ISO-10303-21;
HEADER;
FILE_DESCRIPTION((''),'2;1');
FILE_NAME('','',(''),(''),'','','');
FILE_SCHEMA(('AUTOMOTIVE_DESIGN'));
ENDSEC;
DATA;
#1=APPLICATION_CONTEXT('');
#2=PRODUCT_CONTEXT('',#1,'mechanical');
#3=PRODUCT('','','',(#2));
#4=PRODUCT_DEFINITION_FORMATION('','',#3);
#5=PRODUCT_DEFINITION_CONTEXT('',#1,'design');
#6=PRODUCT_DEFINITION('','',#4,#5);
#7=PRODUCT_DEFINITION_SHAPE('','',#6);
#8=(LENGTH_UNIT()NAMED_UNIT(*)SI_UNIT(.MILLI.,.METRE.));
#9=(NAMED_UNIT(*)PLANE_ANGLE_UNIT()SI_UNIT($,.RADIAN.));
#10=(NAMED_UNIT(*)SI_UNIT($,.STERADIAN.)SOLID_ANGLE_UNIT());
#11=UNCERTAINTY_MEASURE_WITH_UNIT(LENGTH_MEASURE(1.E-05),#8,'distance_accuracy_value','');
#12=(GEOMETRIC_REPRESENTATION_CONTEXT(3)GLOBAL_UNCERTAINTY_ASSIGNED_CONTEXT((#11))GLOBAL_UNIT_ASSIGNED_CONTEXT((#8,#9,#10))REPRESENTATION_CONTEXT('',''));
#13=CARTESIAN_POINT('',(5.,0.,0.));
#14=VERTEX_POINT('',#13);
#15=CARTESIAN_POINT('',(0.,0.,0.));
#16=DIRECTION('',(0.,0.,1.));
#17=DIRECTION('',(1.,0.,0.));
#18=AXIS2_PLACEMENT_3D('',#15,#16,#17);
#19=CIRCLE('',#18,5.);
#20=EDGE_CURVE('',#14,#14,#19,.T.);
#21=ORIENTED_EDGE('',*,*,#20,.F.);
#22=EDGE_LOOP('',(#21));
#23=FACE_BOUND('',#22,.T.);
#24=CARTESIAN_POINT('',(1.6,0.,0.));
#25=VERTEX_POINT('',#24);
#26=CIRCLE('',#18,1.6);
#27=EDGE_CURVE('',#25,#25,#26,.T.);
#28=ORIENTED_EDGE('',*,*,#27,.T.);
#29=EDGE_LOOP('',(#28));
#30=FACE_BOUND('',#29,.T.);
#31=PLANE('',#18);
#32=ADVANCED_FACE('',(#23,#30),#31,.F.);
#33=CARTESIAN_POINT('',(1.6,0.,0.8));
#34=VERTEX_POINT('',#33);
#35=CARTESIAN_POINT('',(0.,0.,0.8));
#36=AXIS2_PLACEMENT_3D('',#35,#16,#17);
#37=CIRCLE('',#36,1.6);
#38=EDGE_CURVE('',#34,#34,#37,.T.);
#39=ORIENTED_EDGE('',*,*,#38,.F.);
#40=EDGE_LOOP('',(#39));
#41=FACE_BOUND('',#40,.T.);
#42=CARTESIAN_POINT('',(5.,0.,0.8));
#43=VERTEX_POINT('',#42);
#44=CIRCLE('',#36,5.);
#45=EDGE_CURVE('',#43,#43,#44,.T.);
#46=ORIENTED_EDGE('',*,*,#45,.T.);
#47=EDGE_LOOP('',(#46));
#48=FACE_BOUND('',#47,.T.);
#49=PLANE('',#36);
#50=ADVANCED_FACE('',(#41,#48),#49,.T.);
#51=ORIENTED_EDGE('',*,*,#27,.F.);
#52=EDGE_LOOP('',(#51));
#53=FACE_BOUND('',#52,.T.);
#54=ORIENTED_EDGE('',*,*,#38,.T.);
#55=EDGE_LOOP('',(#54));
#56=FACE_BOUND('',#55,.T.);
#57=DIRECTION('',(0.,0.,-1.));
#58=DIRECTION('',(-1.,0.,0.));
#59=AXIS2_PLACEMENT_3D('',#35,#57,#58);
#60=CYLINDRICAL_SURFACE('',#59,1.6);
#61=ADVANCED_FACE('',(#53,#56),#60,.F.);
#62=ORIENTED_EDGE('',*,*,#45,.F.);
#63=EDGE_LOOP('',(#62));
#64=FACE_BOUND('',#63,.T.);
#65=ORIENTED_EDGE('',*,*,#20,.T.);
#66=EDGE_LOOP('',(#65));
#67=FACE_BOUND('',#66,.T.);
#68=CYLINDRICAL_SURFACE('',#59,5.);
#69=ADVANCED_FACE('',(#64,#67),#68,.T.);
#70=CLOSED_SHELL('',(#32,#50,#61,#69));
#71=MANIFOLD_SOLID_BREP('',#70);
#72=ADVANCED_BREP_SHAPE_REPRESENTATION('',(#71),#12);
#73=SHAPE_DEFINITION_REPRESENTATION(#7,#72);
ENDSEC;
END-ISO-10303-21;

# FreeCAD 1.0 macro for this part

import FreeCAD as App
import Part
import Sketcher

V = App.Vector

doc = App.newDocument("Part")
body = doc.addObject("PartDesign::Body", "Body")

sketch1 = doc.addObject("Sketcher::SketchObject", "Sketch")
body.addObject(sketch1)
sketch1.AttachmentSupport = (doc.XY_Plane, [""])
sketch1.MapMode = "FlatFace"
sketch1.addGeometry(Part.Circle(V(0, 0, 0), V(0, 0, 1), 5), False)
sketch1.addGeometry(Part.Circle(V(0, 0, 0), V(0, 0, 1), 1.6), False)
sketch1.addConstraint(Sketcher.Constraint("Coincident", 0, 3, -1, 1))
sketch1.addConstraint(Sketcher.Constraint("Coincident", 1, 3, -1, 1))
sketch1.addConstraint(Sketcher.Constraint("Diameter", 0, 10.0))
sketch1.addConstraint(Sketcher.Constraint("Diameter", 1, 3.2))
pad1 = doc.addObject("PartDesign::Pad", "Pad")
body.addObject(pad1)
pad1.Profile = sketch1
pad1.Length = 0.8

doc.recompute()
